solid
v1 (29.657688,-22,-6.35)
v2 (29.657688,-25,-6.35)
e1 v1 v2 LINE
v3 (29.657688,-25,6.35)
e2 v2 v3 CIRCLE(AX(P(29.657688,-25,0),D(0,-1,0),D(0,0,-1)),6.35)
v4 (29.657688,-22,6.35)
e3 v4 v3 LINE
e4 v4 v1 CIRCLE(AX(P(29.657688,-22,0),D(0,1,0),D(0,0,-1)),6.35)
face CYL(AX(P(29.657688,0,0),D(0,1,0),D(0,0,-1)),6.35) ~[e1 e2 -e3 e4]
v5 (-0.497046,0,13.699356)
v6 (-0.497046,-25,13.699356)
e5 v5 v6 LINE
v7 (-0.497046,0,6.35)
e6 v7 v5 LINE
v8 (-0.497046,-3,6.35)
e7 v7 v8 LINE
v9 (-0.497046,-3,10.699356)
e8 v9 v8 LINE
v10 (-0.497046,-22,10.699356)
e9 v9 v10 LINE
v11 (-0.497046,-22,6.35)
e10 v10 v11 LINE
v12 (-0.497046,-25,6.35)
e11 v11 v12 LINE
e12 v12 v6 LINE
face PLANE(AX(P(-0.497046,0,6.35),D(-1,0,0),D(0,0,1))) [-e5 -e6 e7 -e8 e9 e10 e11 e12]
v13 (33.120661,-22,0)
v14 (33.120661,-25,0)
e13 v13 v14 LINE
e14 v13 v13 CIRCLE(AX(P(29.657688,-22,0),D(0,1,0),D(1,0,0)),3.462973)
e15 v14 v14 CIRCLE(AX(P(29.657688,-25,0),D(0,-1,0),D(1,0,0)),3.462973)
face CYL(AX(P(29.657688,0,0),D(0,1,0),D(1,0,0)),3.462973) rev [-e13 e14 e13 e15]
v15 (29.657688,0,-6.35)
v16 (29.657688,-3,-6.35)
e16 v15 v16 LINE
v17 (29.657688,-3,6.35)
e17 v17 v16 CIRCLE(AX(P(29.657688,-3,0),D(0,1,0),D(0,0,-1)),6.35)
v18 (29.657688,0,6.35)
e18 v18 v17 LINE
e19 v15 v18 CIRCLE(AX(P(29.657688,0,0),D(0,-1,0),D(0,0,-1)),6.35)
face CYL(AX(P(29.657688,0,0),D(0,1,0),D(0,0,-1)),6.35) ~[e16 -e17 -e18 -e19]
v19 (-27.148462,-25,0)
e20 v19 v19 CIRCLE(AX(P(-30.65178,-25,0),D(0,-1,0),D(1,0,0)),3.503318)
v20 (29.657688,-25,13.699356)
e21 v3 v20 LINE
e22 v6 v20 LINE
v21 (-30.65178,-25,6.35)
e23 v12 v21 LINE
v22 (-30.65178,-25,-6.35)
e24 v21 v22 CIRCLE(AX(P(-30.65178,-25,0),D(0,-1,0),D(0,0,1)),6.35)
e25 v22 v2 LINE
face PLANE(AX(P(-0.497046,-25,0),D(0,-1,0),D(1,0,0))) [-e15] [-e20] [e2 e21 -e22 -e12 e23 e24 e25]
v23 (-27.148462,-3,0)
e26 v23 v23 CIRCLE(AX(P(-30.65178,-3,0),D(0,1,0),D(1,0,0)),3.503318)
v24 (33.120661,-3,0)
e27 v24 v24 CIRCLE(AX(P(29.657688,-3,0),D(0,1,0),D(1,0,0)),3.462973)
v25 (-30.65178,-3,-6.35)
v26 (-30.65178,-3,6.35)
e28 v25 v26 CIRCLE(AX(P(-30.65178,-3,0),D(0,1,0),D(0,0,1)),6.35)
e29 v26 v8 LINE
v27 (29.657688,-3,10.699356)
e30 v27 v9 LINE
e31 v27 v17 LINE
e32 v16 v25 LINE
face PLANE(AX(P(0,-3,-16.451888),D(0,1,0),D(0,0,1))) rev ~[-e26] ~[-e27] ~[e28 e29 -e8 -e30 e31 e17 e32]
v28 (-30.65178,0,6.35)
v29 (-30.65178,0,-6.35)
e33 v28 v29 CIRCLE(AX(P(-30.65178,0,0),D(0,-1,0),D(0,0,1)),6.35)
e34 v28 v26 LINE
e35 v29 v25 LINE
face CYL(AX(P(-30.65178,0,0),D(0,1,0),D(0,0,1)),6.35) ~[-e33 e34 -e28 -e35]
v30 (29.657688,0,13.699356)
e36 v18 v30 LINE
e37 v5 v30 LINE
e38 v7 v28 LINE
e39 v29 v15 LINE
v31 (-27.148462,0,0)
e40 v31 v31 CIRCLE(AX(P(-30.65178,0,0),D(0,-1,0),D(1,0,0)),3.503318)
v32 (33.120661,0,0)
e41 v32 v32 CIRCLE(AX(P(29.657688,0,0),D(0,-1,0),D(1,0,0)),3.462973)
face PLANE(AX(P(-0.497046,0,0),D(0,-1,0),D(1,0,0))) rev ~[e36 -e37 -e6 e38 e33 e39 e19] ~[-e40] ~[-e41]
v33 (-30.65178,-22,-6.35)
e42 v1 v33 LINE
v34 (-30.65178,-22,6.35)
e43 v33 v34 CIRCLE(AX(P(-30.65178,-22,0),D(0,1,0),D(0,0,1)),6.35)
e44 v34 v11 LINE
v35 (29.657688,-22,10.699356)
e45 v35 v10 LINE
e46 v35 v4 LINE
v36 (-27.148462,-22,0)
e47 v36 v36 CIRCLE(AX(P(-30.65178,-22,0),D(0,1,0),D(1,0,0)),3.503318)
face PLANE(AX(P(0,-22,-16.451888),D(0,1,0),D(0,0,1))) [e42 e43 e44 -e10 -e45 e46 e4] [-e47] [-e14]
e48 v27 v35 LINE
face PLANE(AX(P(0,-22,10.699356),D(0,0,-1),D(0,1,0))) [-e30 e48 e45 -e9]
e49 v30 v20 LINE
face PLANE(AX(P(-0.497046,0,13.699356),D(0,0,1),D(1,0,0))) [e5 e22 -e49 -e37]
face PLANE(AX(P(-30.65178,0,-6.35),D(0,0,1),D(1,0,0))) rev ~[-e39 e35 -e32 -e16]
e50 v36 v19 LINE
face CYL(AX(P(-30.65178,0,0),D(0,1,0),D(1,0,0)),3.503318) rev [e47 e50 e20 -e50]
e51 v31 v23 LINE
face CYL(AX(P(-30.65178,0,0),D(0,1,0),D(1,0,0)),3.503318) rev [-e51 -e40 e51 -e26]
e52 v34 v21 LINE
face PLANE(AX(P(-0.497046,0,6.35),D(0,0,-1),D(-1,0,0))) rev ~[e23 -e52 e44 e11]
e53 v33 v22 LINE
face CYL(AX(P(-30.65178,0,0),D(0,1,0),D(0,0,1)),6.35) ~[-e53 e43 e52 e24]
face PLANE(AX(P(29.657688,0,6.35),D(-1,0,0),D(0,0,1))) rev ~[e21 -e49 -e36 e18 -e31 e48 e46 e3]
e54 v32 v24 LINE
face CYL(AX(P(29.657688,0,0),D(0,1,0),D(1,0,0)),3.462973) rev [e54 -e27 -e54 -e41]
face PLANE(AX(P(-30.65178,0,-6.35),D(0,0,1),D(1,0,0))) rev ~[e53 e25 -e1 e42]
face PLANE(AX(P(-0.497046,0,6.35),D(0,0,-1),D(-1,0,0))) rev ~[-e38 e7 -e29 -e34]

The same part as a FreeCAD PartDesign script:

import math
import FreeCAD as App
import Part
import Sketcher
from FreeCAD import Vector


def add_polygon(sketch, points):
    """Adds a closed chain of lines whose ends are joined by coincident constraints."""
    first, n = sketch.GeometryCount, len(points)
    for a, b in zip(points, points[1:] + points[:1]):
        sketch.addGeometry(Part.LineSegment(App.Vector(*a, 0), App.Vector(*b, 0)), False)
    for i in range(n):
        sketch.addConstraint(Sketcher.Constraint("Coincident", first + i, 2, first + (i + 1) % n, 1))

doc = App.newDocument("Part")
params = doc.addObject("Spreadsheet::Sheet", "Params")
for row, (alias, value) in enumerate([
    ("sketch1_radius", "6.35 mm"),
    ("pad1_length", "25 mm"),
    ("sketch2_radius", "6.35 mm"),
    ("pad2_length", "25 mm"),
    ("sketch3_width", "19 mm"),
    ("pocket1_length", "132.89062 mm"),
], start=1):
    params.set(f"A{row}", alias)
    params.set(f"B{row}", "=" + value)
    params.setAlias(f"B{row}", alias)

body = doc.addObject("PartDesign::Body", "Body")

# Sketch on XZ plane
sketch1 = doc.addObject("Sketcher::SketchObject", "Sketch")
body.addObject(sketch1)
sketch1.AttachmentSupport = (doc.XZ_Plane, [""])
sketch1.MapMode = "FlatFace"
sketch1.addGeometry([
    Part.ArcOfCircle(Part.Circle(Vector(-30.7, 0, 0), Vector(0, 0, 1), 6.3), math.radians(90), math.radians(270)),  # 0
    Part.LineSegment(Vector(-30.7, -6.3, 0), Vector(29.7, -6.3, 0)),  # 1
    Part.ArcOfCircle(Part.Circle(Vector(29.7, 0, 0), Vector(0, 0, 1), 6.3), math.radians(-90), math.radians(90)),  # 2
    Part.LineSegment(Vector(29.7, 6.3, 0), Vector(29.7, 13.7, 0)),  # 3
    Part.LineSegment(Vector(29.7, 13.7, 0), Vector(-0.5, 13.7, 0)),  # 4
    Part.LineSegment(Vector(-0.5, 13.7, 0), Vector(-0.5, 6.3, 0)),  # 5
    Part.LineSegment(Vector(-0.5, 6.3, 0), Vector(-30.7, 6.3, 0)),  # 6
    Part.Circle(Vector(-30.7, 0, 0), Vector(0, 0, 1), 3.5),  # 7
    Part.Circle(Vector(29.7, 0, 0), Vector(0, 0, 1), 3.5),  # 8
], False)
sketch1.addConstraint([
    Sketcher.Constraint("Tangent", 0, 2, 1, 1),
    Sketcher.Constraint("Tangent", 1, 2, 2, 1),
    Sketcher.Constraint("Coincident", 2, 2, 3, 1),
    Sketcher.Constraint("Coincident", 3, 2, 4, 1),
    Sketcher.Constraint("Coincident", 4, 2, 5, 1),
    Sketcher.Constraint("Coincident", 5, 2, 6, 1),
    Sketcher.Constraint("Tangent", 6, 2, 0, 1),
    Sketcher.Constraint("Horizontal", 1),
    Sketcher.Constraint("Vertical", 3),
    Sketcher.Constraint("Horizontal", 4),
    Sketcher.Constraint("Vertical", 5),
    Sketcher.Constraint("Horizontal", 6),
    Sketcher.Constraint("Coincident", 7, 3, 0, 3),
    Sketcher.Constraint("Coincident", 8, 3, 2, 3),
    Sketcher.Constraint("Equal", 0, 2),
    Sketcher.Constraint("Symmetric", 1, 2, 2, 2, -1),
    Sketcher.Constraint("Equal", 4, 6),
    Sketcher.Constraint("Radius", 0, 6.35),
    Sketcher.Constraint("Diameter", 7, 7.006636),
    Sketcher.Constraint("Diameter", 8, 6.925946),
    Sketcher.Constraint("DistanceX", 1, 1, 1, 2, 60.309468),
    Sketcher.Constraint("DistanceY", 3, 1, 3, 2, 7.349356),
    Sketcher.Constraint("DistanceX", 0, 3, -1, 1, 30.65178),
])
sketch1.setExpression("Constraints[17]", "Params.sketch1_radius")
pad1 = doc.addObject("PartDesign::Pad", "Pad")
body.addObject(pad1)
pad1.Profile = sketch1
pad1.setExpression("Length", "Params.pad1_length")

# Sketch on XZ plane
sketch2 = doc.addObject("Sketcher::SketchObject", "Sketch001")
body.addObject(sketch2)
sketch2.AttachmentSupport = (doc.XZ_Plane, [""])
sketch2.MapMode = "FlatFace"
sketch2.addGeometry([
    Part.ArcOfCircle(Part.Circle(Vector(-30.7, 0, 0), Vector(0, 0, 1), 6.3), math.radians(90), math.radians(270)),  # 0
    Part.LineSegment(Vector(-30.7, -6.3, 0), Vector(29.7, -6.3, 0)),  # 1
    Part.ArcOfCircle(Part.Circle(Vector(29.7, 0, 0), Vector(0, 0, 1), 6.3), math.radians(-90), math.radians(90)),  # 2
    Part.LineSegment(Vector(29.7, 6.3, 0), Vector(29.7, 13.7, 0)),  # 3
    Part.LineSegment(Vector(29.7, 13.7, 0), Vector(-0.5, 13.7, 0)),  # 4
    Part.LineSegment(Vector(-0.5, 13.7, 0), Vector(-0.5, 6.3, 0)),  # 5
    Part.LineSegment(Vector(-0.5, 6.3, 0), Vector(-30.7, 6.3, 0)),  # 6
    Part.Circle(Vector(-30.7, 0, 0), Vector(0, 0, 1), 3.5),  # 7
    Part.Circle(Vector(29.7, 0, 0), Vector(0, 0, 1), 3.5),  # 8
], False)
sketch2.addConstraint([
    Sketcher.Constraint("Tangent", 0, 2, 1, 1),
    Sketcher.Constraint("Tangent", 1, 2, 2, 1),
    Sketcher.Constraint("Coincident", 2, 2, 3, 1),
    Sketcher.Constraint("Coincident", 3, 2, 4, 1),
    Sketcher.Constraint("Coincident", 4, 2, 5, 1),
    Sketcher.Constraint("Coincident", 5, 2, 6, 1),
    Sketcher.Constraint("Tangent", 6, 2, 0, 1),
    Sketcher.Constraint("Horizontal", 1),
    Sketcher.Constraint("Vertical", 3),
    Sketcher.Constraint("Horizontal", 4),
    Sketcher.Constraint("Vertical", 5),
    Sketcher.Constraint("Horizontal", 6),
    Sketcher.Constraint("Coincident", 7, 3, 0, 3),
    Sketcher.Constraint("Coincident", 8, 3, 2, 3),
    Sketcher.Constraint("Equal", 0, 2),
    Sketcher.Constraint("Symmetric", 1, 2, 2, 2, -1),
    Sketcher.Constraint("Equal", 4, 6),
    Sketcher.Constraint("Radius", 0, 6.35),
    Sketcher.Constraint("Diameter", 7, 7.006636),
    Sketcher.Constraint("Diameter", 8, 6.925946),
    Sketcher.Constraint("DistanceX", 1, 1, 1, 2, 60.309468),
    Sketcher.Constraint("DistanceY", 3, 1, 3, 2, 7.349356),
    Sketcher.Constraint("DistanceX", 0, 3, -1, 1, 30.65178),
])
sketch2.setExpression("Constraints[17]", "Params.sketch2_radius")
pad2 = doc.addObject("PartDesign::Pad", "Pad001")
body.addObject(pad2)
pad2.Profile = sketch2
pad2.setExpression("Length", "Params.pad2_length")

# Sketch on YZ plane
sketch3 = doc.addObject("Sketcher::SketchObject", "Sketch002")
body.addObject(sketch3)
sketch3.AttachmentSupport = (doc.YZ_Plane, [""])
sketch3.MapMode = "FlatFace"
add_polygon(sketch3, [(-22, 11), (-22, -16), (-3, -16), (-3, 11)])  # lines 0-3
sketch3.addConstraint([
    Sketcher.Constraint("Vertical", 0),
    Sketcher.Constraint("Horizontal", 1),
    Sketcher.Constraint("Vertical", 2),
    Sketcher.Constraint("Horizontal", 3),
    Sketcher.Constraint("DistanceX", 1, 1, 1, 2, 19.0),
    Sketcher.Constraint("DistanceX", 0, 2, -1, 1, 22.0),
    Sketcher.Constraint("DistanceY", 0, 2, 0, 1, 27.151244),
    Sketcher.Constraint("DistanceY", 0, 2, -1, 1, 16.451888),
])
sketch3.setExpression("Constraints[8]", "Params.sketch3_width")
pocket1 = doc.addObject("PartDesign::Pocket", "Pocket")
body.addObject(pocket1)
pocket1.Profile = sketch3
pocket1.setExpression("Length", "Params.pocket1_length")
pocket1.Midplane = True

doc.recompute()
